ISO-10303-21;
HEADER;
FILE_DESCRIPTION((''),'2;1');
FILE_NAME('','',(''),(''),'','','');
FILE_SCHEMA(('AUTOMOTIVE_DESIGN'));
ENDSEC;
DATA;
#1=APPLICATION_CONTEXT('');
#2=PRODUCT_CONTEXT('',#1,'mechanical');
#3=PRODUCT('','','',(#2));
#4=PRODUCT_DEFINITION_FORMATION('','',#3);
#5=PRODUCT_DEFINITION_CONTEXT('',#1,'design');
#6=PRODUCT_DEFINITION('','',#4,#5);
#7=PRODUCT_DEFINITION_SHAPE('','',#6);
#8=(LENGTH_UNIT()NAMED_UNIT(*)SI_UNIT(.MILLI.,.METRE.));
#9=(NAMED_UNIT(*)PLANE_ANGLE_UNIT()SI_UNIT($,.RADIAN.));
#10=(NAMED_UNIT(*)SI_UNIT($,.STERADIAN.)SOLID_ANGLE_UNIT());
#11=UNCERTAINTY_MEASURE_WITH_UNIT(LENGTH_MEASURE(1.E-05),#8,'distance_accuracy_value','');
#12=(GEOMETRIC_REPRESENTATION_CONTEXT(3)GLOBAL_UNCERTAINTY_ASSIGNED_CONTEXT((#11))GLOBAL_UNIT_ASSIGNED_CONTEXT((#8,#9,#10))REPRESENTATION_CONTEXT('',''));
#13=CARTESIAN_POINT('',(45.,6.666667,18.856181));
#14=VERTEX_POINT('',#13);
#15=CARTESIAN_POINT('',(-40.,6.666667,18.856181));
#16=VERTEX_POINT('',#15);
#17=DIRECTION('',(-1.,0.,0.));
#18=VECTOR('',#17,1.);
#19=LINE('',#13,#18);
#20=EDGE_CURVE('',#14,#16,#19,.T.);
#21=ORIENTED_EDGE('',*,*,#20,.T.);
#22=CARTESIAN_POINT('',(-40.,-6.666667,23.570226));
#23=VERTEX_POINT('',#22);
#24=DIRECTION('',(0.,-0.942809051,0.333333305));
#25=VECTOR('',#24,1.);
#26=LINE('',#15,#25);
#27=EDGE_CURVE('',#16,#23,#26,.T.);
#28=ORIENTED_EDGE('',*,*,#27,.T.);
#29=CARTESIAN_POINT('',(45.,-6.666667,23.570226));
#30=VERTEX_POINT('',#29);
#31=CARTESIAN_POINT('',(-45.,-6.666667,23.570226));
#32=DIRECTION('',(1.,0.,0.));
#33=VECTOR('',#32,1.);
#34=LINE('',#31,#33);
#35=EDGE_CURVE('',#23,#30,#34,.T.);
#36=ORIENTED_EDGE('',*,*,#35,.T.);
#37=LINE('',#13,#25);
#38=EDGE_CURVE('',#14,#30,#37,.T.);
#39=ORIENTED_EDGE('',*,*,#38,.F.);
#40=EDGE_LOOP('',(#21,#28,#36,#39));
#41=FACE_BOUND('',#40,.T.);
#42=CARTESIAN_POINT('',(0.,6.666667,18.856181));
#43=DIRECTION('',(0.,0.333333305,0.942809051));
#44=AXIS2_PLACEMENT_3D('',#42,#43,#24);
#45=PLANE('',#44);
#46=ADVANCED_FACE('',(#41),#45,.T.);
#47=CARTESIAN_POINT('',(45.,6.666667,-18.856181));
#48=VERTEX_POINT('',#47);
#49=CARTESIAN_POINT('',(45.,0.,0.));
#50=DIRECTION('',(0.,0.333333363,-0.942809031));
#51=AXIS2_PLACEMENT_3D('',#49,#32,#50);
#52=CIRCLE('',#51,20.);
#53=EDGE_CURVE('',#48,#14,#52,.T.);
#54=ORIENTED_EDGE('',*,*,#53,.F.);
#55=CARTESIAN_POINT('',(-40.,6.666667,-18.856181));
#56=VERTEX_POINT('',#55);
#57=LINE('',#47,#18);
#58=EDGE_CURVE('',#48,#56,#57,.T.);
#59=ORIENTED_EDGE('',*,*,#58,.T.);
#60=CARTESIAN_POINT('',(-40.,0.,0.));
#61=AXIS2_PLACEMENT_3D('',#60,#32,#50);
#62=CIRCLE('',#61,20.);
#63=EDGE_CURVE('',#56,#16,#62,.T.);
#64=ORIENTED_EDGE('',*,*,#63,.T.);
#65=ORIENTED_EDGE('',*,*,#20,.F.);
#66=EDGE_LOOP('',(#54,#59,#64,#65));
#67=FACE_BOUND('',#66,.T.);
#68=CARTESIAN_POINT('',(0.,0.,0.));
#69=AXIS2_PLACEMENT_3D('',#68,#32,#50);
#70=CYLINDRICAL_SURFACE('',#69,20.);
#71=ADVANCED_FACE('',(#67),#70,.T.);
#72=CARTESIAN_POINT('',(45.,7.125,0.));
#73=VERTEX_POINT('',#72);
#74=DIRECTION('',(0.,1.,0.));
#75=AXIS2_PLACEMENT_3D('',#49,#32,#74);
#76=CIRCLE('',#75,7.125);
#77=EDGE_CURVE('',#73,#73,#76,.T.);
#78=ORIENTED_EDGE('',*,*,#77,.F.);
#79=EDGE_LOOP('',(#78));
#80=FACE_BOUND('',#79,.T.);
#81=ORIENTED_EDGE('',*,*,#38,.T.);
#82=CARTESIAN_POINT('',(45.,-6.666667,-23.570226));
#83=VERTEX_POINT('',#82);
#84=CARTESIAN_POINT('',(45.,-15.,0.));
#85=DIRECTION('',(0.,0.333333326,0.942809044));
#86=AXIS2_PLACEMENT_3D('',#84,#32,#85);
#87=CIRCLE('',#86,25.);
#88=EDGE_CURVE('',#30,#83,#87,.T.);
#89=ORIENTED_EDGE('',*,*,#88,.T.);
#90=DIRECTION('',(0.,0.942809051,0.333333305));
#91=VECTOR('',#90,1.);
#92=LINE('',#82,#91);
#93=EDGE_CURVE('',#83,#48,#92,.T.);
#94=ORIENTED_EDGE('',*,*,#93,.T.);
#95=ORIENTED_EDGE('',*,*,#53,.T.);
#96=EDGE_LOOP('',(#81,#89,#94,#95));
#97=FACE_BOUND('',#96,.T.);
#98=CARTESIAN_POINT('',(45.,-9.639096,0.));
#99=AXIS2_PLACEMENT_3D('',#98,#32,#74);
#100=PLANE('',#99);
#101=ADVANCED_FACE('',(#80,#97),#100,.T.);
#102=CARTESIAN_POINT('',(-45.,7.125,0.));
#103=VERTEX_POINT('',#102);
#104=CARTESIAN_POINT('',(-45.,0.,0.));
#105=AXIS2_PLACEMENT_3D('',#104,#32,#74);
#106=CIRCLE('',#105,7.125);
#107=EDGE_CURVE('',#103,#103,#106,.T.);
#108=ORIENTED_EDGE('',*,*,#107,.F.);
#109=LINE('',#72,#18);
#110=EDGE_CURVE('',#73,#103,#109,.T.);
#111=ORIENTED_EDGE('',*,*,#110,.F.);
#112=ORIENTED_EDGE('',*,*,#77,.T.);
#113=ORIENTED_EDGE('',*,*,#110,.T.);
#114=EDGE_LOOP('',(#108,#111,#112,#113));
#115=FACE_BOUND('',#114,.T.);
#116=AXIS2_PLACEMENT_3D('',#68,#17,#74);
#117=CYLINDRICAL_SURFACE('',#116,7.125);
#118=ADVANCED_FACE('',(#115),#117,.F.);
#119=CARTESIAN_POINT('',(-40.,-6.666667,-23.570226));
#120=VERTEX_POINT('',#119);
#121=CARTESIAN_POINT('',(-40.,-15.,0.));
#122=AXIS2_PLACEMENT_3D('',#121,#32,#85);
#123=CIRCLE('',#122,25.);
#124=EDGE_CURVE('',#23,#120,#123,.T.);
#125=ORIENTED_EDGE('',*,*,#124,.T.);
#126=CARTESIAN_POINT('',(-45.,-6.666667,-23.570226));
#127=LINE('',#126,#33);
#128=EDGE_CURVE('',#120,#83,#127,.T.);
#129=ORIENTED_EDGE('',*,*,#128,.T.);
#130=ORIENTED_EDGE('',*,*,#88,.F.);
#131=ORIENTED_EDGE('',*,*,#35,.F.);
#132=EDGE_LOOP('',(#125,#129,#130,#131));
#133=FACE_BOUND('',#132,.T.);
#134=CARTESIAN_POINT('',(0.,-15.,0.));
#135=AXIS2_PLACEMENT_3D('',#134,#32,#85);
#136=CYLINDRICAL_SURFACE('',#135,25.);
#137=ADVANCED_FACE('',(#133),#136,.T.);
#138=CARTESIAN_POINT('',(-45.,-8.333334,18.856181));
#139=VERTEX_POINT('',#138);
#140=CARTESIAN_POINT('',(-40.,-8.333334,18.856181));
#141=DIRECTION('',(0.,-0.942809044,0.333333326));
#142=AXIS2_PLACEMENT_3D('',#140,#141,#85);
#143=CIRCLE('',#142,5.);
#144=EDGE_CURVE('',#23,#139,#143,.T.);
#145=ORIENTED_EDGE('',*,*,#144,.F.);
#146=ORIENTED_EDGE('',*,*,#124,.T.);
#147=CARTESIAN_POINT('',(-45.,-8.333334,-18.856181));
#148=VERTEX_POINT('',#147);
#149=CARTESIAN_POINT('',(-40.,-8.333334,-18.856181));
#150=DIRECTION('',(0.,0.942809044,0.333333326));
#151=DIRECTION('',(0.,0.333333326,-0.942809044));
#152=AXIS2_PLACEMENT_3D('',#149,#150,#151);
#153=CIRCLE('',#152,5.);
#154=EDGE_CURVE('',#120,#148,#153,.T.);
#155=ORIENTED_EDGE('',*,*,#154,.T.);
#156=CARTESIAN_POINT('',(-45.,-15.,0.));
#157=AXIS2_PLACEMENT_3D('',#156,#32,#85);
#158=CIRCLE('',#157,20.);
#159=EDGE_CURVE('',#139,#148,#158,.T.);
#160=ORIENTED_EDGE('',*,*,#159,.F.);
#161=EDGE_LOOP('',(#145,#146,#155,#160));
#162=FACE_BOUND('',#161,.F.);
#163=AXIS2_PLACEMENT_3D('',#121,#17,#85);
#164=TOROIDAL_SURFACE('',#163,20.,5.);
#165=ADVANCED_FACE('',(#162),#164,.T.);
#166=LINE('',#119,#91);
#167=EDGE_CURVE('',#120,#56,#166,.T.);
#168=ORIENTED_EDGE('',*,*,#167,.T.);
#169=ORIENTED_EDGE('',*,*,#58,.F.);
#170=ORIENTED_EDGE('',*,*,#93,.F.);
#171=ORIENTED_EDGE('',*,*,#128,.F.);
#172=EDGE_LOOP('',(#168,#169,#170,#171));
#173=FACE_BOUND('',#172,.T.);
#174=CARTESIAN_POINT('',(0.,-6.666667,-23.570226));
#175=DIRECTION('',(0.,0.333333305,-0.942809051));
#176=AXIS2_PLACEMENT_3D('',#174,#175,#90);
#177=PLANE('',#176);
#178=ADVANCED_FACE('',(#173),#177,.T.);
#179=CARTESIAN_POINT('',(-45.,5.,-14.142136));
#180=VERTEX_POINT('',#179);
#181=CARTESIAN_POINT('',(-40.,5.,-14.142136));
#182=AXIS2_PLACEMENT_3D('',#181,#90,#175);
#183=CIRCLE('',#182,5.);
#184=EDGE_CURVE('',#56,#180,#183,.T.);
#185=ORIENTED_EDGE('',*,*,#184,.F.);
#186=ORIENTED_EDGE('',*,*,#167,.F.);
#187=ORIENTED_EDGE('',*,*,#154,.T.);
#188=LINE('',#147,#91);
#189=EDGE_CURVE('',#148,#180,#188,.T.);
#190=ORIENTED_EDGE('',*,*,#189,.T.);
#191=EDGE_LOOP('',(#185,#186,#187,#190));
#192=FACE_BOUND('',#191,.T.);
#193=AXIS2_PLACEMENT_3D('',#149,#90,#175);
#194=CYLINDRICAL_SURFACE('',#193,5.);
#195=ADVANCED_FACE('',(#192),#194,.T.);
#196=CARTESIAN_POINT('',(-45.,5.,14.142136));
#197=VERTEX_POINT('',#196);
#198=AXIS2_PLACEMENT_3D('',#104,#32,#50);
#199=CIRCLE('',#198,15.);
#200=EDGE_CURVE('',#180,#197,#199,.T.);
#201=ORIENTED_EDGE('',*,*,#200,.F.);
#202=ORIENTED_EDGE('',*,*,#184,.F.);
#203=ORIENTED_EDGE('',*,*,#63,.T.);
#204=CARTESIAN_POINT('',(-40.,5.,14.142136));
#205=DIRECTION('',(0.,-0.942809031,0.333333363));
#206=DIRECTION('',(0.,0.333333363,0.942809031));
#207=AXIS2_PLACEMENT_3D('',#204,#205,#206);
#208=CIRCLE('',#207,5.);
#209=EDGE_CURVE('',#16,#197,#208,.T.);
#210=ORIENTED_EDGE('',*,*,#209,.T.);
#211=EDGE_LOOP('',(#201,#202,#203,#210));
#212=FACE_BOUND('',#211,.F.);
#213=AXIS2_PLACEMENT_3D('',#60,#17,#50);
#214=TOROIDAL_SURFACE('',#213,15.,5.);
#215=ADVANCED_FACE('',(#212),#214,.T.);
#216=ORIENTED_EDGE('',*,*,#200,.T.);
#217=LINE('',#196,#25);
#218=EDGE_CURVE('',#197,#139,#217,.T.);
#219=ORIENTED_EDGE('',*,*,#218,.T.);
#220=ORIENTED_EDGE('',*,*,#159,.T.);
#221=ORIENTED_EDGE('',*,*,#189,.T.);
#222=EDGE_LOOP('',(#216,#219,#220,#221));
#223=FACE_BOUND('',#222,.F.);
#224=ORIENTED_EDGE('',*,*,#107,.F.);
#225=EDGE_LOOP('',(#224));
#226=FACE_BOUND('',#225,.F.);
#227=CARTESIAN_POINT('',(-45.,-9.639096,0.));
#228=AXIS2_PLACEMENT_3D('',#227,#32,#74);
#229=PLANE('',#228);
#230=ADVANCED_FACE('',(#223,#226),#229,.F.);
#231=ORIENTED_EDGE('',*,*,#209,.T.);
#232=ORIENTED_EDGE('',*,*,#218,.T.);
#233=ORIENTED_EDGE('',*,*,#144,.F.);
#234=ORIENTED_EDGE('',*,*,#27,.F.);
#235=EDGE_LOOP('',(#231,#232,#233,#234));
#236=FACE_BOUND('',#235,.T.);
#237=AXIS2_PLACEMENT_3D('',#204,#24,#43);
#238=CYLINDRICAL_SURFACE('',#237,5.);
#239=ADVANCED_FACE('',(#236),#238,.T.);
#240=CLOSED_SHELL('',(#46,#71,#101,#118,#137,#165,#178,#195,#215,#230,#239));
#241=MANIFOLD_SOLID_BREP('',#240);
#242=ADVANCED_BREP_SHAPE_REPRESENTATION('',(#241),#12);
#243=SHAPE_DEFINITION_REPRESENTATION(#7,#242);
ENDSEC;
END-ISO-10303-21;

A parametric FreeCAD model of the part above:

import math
import FreeCAD as App
import Part
import Sketcher
from FreeCAD import Vector
Q = App.Units.Quantity


def edges_at(feature, points):
    """Names of the edges that pass closest to the given points."""
    edges = feature.Shape.Edges
    near = lambda p: min(range(len(edges)), key=lambda i: edges[i].distToShape(Part.Vertex(*p))[0])
    return sorted({f"Edge{near(p) + 1}" for p in points})

doc = App.newDocument("Part")
params = doc.addObject("Spreadsheet::Sheet", "Params")
for row, (alias, value) in enumerate([
    ("sketch1_radius", "25 mm"),
    ("sketch1_radius2", "20 mm"),
    ("sketch1_diameter", "14.25 mm"),
    ("pad1_length", "90 mm"),
    ("fillet_radius", "5 mm"),
], start=1):
    params.set(f"A{row}", alias)
    params.set(f"B{row}", "=" + value)
    params.setAlias(f"B{row}", alias)

body = doc.addObject("PartDesign::Body", "Body")

# Sketch on YZ plane
sketch1 = body.newObject("Sketcher::SketchObject", "Sketch")
sketch1.AttachmentSupport = (doc.getObject("YZ_Plane"), [""])
sketch1.MapMode = "FlatFace"
sketch1.addGeometry([
    Part.LineSegment(Vector(6.666667, 18.856181, 0), Vector(-6.666667, 23.570226, 0)),  # 0
    Part.ArcOfCircle(Part.Circle(Vector(-15, 0, 0), Vector(0, 0, 1), 25), math.radians(70.52878), math.radians(289.47122)),  # 1
    Part.LineSegment(Vector(-6.666667, -23.570226, 0), Vector(6.666667, -18.856181, 0)),  # 2
    Part.ArcOfCircle(Part.Circle(Vector(0, 0, 0), Vector(0, 0, 1), 20), math.radians(-70.528778), math.radians(70.528778)),  # 3
    Part.Circle(Vector(0, 0, 0), Vector(0, 0, 1), 7.125),  # 4
], False)
sketch1.addConstraint([
    Sketcher.Constraint("Tangent", 0, 2, 1, 1),
    Sketcher.Constraint("Tangent", 1, 2, 2, 1),
    Sketcher.Constraint("Tangent", 2, 2, 3, 1),
    Sketcher.Constraint("Tangent", 3, 2, 0, 1),
    Sketcher.Constraint("Coincident", 3, 3, -1, 1),
    Sketcher.Constraint("Coincident", 4, 3, -1, 1),
    Sketcher.Constraint("PointOnObject", 1, 3, -1),
    Sketcher.Constraint("Radius", 1, Q("25 mm")),
    Sketcher.Constraint("Radius", 3, Q("20 mm")),
    Sketcher.Constraint("Diameter", 4, Q("14.25 mm")),
    Sketcher.Constraint("DistanceX", 1, 3, -1, 1, Q("15 mm")),
])
sketch1.setExpression("Constraints[7]", "Params.sketch1_radius")
sketch1.setExpression("Constraints[8]", "Params.sketch1_radius2")
sketch1.setExpression("Constraints[9]", "Params.sketch1_diameter")
pad1 = body.newObject("PartDesign::Pad", "Pad")
pad1.Profile = sketch1
pad1.setExpression("Length", "Params.pad1_length")
pad1.Midplane = True
doc.recompute()

fillet = body.newObject("PartDesign::Fillet", "Fillet")
fillet.Base = (pad1, edges_at(pad1, [(-45, -40, 0)]))
fillet.setExpression("Radius", "Params.fillet_radius")

doc.recompute()
